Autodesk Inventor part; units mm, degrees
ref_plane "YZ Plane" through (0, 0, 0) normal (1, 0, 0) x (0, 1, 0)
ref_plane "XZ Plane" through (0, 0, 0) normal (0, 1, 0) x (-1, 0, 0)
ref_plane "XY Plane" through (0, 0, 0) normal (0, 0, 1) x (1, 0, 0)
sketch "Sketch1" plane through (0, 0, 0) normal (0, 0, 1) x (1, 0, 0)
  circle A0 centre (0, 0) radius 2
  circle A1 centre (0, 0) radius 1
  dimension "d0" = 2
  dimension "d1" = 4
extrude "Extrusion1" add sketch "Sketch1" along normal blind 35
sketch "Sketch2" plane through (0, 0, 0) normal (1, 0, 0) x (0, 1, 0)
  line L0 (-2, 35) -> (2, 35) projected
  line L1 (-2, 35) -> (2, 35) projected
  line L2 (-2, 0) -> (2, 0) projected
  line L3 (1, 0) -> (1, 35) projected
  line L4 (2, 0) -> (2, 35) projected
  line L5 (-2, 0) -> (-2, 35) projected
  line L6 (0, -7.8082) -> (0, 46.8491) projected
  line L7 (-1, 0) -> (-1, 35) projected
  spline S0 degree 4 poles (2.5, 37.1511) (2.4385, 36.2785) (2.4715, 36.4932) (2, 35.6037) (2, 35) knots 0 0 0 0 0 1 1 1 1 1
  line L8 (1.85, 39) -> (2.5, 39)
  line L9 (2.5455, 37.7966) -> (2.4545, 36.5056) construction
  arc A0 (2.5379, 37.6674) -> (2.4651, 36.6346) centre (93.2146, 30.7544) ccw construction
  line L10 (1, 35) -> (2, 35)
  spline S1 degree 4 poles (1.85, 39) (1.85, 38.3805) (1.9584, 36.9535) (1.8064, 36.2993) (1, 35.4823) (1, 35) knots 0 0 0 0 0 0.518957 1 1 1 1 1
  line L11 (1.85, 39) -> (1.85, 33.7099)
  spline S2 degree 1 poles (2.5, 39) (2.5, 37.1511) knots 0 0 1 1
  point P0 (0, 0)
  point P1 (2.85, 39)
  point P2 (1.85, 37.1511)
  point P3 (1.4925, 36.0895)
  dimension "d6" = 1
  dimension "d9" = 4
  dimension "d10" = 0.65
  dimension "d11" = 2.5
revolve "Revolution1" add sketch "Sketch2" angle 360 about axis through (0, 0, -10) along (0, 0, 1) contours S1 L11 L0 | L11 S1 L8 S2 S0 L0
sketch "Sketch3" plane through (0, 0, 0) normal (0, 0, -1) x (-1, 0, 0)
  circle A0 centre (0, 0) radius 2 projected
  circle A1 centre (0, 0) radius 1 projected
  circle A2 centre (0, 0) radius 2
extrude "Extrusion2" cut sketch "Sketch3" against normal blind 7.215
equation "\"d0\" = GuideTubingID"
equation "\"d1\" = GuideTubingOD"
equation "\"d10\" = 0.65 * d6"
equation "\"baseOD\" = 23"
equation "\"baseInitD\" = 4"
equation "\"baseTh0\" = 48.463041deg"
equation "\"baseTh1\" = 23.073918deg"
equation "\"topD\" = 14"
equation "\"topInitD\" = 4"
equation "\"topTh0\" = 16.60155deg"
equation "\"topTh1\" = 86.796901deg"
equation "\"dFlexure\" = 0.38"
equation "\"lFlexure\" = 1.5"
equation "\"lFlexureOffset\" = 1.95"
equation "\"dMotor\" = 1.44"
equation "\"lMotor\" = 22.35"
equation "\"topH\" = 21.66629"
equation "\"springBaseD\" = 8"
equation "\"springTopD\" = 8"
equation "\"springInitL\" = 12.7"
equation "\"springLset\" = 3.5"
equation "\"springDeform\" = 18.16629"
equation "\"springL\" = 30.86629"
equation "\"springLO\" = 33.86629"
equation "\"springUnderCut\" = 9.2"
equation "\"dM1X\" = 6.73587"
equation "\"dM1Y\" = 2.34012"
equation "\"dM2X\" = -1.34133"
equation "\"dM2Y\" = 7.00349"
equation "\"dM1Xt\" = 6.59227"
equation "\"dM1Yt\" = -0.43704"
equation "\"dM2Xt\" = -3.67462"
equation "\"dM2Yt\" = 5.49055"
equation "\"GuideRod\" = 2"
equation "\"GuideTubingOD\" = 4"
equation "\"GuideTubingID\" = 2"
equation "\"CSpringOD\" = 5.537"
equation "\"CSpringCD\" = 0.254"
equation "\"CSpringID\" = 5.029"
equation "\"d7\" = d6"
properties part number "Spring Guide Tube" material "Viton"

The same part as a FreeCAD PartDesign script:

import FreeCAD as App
import Part
import Sketcher

V = App.Vector
Q = App.Units.Quantity

doc = App.newDocument("Part")
params = doc.addObject("Spreadsheet::Sheet", "Params")
for row, (alias, value) in enumerate([
    ("sketch1_diameter", "4 mm"),
    ("sketch1_diameter2", "2 mm"),
    ("pad1_length", "35 mm"),
    ("revolution_angle", "360 deg"),
    ("sketch3_diameter", "4 mm"),
    ("sketch3_diameter2", "2 mm"),
    ("pocket1_length", "7.215 mm"),
], start=1):
    params.set(f"A{row}", alias)
    params.set(f"B{row}", "=" + value)
    params.setAlias(f"B{row}", alias)

body = doc.addObject("PartDesign::Body", "Body")

sketch1 = body.newObject("Sketcher::SketchObject", "Sketch")
sketch1.AttachmentSupport = (doc.getObject("XY_Plane"), [""])
sketch1.MapMode = "FlatFace"
sketch1.addGeometry(Part.Circle(V(0, 0, 0), V(0, 0, 1), 2), False)
sketch1.addGeometry(Part.Circle(V(0, 0, 0), V(0, 0, 1), 1), False)
sketch1.addConstraint(Sketcher.Constraint("Coincident", 0, 3, -1, 1))
sketch1.addConstraint(Sketcher.Constraint("Coincident", 1, 3, -1, 1))
sketch1.addConstraint(Sketcher.Constraint("Diameter", 0, Q("4 mm")))
sketch1.addConstraint(Sketcher.Constraint("Diameter", 1, Q("2 mm")))
sketch1.setExpression("Constraints[2]", "Params.sketch1_diameter")
sketch1.setExpression("Constraints[3]", "Params.sketch1_diameter2")
pad1 = body.newObject("PartDesign::Pad", "Pad")
pad1.Profile = sketch1
pad1.setExpression("Length", "Params.pad1_length")

sketch2 = body.newObject("Sketcher::SketchObject", "Sketch001")
sketch2.AttachmentSupport = (doc.getObject("YZ_Plane"), [""])
sketch2.MapMode = "FlatFace"
sketch2.addGeometry(Part.BSplineCurve([V(1.85, 37.150948, 0), V(1.8359, 37.016009, 0), V(1.742537, 36.422402, 0), V(1.494118, 35.982913, 0), V(1, 35.4823, 0), V(1, 35, 0)], [5, 1, 5], [0.387254613, 0.518957, 1], False, 4, [1, 1, 1, 1, 1, 1], False), False)
sketch2.addGeometry(Part.LineSegment(V(1, 35, 0), V(2, 35, 0)), False)
sketch2.addGeometry(Part.BSplineCurve([V(2.5, 37.1511, 0), V(2.4385, 36.2785, 0), V(2.4715, 36.4932, 0), V(2, 35.6037, 0), V(2, 35, 0)], [5, 5], [0, 1], False, 4, [1, 1, 1, 1, 1], False), False)
sketch2.addGeometry(Part.BSplineCurve([V(2.5, 39, 0), V(2.5, 37.1511, 0)], [2, 2], [0, 1], False, 1, [1, 1], False), False)
sketch2.addGeometry(Part.LineSegment(V(2.5, 39, 0), V(1.85, 39, 0)), False)
sketch2.addGeometry(Part.BSplineCurve([V(1.85, 39, 0), V(1.85, 38.537718, 0), V(1.881325, 38.008031, 0), V(1.891459, 37.547718, 0), V(1.85, 37.150948, 0)], [5, 5], [0, 0.387254613], False, 4, [1, 1, 1, 1, 1], False), False)
sketch2.addConstraint(Sketcher.Constraint("Block", 0))
sketch2.addConstraint(Sketcher.Constraint("Block", 2))
sketch2.addConstraint(Sketcher.Constraint("Block", 3))
sketch2.addConstraint(Sketcher.Constraint("Block", 5))
sketch2.addConstraint(Sketcher.Constraint("Coincident", 0, 2, 1, 1))
sketch2.addConstraint(Sketcher.Constraint("Coincident", 1, 2, 2, 2))
sketch2.addConstraint(Sketcher.Constraint("Coincident", 3, 1, 4, 1))
sketch2.addConstraint(Sketcher.Constraint("Coincident", 4, 2, 5, 1))
revolution = body.newObject("PartDesign::Revolution", "Revolution")
revolution.Profile = sketch2
revolution.ReferenceAxis = (sketch2, ["V_Axis"])
revolution.setExpression("Angle", "Params.revolution_angle")

sketch3 = body.newObject("Sketcher::SketchObject", "Sketch002")
sketch3.AttachmentSupport = (doc.getObject("XY_Plane"), [""])
sketch3.MapMode = "FlatFace"
sketch3.addGeometry(Part.Circle(V(0, 0, 0), V(0, 0, 1), 2), False)
sketch3.addGeometry(Part.Circle(V(0, 0, 0), V(0, 0, 1), 1), False)
sketch3.addConstraint(Sketcher.Constraint("Coincident", 0, 3, -1, 1))
sketch3.addConstraint(Sketcher.Constraint("Coincident", 1, 3, -1, 1))
sketch3.addConstraint(Sketcher.Constraint("Diameter", 0, Q("4 mm")))
sketch3.addConstraint(Sketcher.Constraint("Diameter", 1, Q("2 mm")))
sketch3.setExpression("Constraints[2]", "Params.sketch3_diameter")
sketch3.setExpression("Constraints[3]", "Params.sketch3_diameter2")
pocket1 = body.newObject("PartDesign::Pocket", "Pocket")
pocket1.Profile = sketch3
pocket1.setExpression("Length", "Params.pocket1_length")
pocket1.Reversed = True

doc.recompute()
